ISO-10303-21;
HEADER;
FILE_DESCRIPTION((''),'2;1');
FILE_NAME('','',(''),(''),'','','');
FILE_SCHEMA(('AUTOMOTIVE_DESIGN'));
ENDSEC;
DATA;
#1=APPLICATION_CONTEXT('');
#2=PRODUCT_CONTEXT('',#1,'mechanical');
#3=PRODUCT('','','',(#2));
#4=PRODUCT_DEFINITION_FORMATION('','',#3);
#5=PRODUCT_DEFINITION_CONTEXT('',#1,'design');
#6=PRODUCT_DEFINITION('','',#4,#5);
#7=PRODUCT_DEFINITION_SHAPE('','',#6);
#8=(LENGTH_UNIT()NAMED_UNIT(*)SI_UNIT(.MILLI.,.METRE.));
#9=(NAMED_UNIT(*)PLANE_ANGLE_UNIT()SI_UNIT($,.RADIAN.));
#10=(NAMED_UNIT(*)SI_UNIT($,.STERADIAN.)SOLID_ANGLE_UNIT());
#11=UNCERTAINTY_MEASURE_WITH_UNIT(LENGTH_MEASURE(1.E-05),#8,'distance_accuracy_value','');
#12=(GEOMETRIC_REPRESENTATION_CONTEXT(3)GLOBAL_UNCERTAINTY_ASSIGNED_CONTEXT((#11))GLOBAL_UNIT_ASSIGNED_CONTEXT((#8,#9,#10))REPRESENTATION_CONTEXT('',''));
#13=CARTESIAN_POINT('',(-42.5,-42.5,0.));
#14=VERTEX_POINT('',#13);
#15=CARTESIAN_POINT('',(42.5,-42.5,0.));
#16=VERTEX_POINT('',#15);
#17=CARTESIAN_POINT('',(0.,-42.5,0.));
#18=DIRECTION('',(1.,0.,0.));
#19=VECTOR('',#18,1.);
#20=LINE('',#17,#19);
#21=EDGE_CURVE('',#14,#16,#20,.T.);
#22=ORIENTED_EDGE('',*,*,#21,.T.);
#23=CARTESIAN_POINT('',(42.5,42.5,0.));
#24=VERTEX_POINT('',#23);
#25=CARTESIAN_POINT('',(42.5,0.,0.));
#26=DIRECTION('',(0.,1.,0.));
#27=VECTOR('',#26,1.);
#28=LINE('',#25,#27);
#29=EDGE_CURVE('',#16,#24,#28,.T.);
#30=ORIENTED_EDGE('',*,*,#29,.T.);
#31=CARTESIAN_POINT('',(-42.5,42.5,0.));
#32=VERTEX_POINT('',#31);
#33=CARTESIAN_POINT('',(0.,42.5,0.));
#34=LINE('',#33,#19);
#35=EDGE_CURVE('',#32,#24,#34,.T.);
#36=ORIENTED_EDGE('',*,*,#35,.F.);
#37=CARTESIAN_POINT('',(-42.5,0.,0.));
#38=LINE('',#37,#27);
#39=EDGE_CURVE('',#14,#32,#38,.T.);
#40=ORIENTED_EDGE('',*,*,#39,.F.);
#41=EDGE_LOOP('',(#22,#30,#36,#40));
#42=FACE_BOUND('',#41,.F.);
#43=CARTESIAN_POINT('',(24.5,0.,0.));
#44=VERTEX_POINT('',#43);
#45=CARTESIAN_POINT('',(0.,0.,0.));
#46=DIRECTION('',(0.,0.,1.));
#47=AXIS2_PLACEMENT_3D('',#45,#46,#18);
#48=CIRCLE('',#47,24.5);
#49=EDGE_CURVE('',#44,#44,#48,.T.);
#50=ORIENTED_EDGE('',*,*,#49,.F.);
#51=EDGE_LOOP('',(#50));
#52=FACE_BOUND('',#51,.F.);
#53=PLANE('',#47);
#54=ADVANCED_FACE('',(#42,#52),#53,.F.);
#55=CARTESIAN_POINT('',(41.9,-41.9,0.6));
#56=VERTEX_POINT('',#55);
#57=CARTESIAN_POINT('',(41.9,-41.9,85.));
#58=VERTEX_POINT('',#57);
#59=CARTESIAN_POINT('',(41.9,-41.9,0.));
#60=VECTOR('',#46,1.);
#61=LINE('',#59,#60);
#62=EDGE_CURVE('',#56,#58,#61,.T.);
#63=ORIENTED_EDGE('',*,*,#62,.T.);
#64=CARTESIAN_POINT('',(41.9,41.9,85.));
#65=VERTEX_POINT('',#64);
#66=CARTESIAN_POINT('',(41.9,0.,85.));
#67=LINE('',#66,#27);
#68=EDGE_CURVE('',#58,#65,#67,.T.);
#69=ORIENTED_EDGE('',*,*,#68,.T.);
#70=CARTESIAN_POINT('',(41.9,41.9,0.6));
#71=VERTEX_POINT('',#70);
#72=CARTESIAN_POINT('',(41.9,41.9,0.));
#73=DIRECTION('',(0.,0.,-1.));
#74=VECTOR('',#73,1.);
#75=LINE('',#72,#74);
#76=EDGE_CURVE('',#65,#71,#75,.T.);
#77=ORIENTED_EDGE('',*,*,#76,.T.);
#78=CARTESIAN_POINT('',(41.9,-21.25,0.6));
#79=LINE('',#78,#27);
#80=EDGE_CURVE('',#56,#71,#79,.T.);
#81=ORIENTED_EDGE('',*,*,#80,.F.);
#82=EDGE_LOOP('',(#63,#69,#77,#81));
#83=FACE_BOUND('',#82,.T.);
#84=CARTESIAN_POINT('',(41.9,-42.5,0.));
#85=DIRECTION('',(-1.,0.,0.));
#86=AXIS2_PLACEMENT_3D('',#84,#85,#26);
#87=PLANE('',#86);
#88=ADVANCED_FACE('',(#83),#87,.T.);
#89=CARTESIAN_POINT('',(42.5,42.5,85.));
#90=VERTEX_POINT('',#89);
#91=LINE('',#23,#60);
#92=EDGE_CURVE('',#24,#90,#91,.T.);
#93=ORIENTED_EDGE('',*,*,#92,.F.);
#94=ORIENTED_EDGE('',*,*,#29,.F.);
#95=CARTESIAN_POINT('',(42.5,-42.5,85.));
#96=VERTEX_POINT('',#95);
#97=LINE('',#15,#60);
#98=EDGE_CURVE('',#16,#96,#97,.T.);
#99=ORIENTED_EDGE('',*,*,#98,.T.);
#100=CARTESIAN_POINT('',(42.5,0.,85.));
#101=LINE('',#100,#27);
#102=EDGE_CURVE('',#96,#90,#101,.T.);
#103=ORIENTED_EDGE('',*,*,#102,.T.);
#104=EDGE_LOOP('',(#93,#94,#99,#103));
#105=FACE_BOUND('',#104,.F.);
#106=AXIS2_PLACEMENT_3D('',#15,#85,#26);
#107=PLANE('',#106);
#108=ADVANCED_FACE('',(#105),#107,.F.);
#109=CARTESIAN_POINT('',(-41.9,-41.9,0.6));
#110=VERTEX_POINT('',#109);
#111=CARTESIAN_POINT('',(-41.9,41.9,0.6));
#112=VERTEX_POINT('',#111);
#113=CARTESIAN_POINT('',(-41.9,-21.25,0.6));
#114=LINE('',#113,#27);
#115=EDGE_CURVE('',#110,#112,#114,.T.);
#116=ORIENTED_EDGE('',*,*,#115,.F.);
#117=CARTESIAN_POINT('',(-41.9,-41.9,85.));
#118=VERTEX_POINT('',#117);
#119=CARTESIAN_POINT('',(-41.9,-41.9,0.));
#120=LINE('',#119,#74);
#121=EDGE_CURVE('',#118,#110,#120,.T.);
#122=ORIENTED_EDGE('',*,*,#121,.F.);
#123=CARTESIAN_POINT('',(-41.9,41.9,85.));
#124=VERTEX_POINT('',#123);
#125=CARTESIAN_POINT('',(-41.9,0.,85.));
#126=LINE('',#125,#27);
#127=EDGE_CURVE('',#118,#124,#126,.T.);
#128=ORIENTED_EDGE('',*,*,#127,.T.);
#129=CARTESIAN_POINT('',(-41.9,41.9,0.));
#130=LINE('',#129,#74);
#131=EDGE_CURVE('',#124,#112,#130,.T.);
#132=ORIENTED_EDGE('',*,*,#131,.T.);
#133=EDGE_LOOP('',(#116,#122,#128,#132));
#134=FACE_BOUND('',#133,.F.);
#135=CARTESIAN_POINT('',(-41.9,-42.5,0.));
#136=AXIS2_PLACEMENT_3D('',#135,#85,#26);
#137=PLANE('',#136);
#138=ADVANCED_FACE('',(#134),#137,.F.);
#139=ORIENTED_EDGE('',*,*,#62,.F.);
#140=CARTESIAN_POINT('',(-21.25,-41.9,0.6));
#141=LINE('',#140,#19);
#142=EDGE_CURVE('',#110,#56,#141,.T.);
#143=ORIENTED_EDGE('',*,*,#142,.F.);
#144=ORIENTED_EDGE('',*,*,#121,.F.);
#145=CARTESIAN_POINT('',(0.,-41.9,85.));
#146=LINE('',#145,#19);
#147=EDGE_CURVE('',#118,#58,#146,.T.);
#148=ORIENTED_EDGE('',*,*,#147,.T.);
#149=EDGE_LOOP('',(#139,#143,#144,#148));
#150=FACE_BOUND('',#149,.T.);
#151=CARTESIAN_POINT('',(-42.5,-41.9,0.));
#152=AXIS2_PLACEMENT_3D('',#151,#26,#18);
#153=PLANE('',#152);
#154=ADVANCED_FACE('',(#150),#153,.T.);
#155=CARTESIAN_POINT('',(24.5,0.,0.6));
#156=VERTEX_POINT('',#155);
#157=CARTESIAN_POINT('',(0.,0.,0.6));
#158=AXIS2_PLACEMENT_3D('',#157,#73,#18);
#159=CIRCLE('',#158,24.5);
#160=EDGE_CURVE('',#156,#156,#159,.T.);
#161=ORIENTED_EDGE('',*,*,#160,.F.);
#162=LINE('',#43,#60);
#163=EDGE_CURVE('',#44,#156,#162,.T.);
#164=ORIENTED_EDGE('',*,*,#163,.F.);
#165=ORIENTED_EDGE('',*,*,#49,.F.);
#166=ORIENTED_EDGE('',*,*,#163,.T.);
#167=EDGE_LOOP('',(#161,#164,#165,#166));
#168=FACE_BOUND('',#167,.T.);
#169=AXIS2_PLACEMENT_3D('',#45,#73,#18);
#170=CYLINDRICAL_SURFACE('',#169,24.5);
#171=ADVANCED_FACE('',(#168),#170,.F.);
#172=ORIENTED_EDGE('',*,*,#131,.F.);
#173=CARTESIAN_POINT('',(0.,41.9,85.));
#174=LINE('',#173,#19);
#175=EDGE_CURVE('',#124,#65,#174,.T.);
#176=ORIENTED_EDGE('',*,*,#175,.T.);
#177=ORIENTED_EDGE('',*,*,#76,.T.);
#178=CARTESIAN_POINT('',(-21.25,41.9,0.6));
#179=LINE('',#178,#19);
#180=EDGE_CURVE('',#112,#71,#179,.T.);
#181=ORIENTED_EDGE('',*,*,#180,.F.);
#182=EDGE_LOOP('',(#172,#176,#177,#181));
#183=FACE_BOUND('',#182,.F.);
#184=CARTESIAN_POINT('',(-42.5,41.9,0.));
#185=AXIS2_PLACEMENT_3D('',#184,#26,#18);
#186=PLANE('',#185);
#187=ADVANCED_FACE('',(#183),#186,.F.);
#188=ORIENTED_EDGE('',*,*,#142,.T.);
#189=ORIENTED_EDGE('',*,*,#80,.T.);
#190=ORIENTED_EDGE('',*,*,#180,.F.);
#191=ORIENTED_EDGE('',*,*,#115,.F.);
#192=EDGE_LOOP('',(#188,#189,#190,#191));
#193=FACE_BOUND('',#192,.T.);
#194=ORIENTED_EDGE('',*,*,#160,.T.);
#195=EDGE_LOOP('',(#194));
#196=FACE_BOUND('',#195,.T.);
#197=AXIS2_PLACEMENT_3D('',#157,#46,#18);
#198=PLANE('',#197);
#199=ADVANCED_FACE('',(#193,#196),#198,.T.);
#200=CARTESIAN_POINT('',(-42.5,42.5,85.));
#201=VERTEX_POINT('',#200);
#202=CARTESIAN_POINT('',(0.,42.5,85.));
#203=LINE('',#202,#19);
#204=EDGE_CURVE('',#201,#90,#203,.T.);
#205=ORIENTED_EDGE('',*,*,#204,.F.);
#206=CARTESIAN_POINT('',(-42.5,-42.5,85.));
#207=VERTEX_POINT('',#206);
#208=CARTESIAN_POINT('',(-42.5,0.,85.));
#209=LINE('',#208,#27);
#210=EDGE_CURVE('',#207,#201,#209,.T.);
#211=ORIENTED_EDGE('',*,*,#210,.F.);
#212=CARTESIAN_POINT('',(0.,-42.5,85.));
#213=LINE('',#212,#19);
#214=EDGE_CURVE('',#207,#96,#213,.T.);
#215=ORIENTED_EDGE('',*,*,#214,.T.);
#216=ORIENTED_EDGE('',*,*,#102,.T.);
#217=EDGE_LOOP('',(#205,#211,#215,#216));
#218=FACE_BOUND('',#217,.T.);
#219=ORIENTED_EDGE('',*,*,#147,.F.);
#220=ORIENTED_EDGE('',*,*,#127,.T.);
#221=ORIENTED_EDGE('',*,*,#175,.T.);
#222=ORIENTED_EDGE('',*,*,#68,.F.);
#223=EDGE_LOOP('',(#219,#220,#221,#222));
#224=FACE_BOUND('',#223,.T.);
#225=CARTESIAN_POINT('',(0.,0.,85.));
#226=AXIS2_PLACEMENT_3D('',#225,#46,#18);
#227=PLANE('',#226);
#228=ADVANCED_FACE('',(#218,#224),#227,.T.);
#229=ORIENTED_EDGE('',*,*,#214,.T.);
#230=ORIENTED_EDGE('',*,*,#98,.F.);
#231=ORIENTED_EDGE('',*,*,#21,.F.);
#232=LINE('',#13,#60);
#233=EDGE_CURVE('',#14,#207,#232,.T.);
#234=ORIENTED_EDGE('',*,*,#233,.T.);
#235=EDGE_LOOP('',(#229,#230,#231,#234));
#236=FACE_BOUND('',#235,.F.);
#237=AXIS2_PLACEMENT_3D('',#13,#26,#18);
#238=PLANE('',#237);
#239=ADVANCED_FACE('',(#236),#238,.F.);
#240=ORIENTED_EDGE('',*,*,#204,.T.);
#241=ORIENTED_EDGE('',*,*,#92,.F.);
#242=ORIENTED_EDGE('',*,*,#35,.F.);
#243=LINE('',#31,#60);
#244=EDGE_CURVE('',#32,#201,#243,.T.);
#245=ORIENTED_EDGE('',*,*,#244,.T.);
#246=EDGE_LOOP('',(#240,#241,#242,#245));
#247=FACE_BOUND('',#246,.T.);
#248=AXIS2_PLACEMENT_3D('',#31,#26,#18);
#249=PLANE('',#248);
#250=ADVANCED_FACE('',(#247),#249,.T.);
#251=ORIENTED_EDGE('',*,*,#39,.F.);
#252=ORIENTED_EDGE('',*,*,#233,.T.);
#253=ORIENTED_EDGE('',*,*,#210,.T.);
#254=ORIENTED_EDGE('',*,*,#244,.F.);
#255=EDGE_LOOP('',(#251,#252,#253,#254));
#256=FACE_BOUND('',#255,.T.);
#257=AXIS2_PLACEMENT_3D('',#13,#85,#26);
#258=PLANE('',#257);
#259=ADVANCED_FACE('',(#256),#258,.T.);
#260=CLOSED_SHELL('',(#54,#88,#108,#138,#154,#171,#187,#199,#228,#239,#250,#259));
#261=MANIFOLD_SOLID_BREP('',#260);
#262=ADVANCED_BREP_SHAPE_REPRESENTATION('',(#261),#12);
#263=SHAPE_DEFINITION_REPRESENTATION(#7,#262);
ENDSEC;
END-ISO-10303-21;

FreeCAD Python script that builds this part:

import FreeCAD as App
import Part
import Sketcher
from FreeCAD import Vector
Q = App.Units.Quantity


def faces_at(feature, points):
    """Names of the faces that lie closest to the given points."""
    faces = feature.Shape.Faces
    near = lambda p: min(range(len(faces)), key=lambda i: faces[i].distToShape(Part.Vertex(*p))[0])
    return sorted({f"Face{near(p) + 1}" for p in points})


def add_polygon(sketch, points):
    """Adds a closed chain of lines whose ends are joined by coincident constraints."""
    first, n = sketch.GeometryCount, len(points)
    for a, b in zip(points, points[1:] + points[:1]):
        sketch.addGeometry(Part.LineSegment(App.Vector(*a, 0), App.Vector(*b, 0)), False)
    for i in range(n):
        sketch.addConstraint(Sketcher.Constraint("Coincident", first + i, 2, first + (i + 1) % n, 1))

doc = App.newDocument("Part")
body = doc.addObject("PartDesign::Body", "Body")

# Sketch on XY plane
sketch1 = doc.addObject("Sketcher::SketchObject", "Sketch")
body.addObject(sketch1)
sketch1.AttachmentSupport = (doc.XY_Plane, [""])
sketch1.MapMode = "FlatFace"
add_polygon(sketch1, [(-42, 42), (-42, -42), (42, -42), (42, 42)])  # lines 0-3
sketch1.addConstraint([
    Sketcher.Constraint("Vertical", 0),
    Sketcher.Constraint("Horizontal", 1),
    Sketcher.Constraint("Vertical", 2),
    Sketcher.Constraint("Horizontal", 3),
    Sketcher.Constraint("Symmetric", 0, 2, 2, 2, -1, 1),
    Sketcher.Constraint("Equal", 3, 0),
    Sketcher.Constraint("DistanceX", 1, 1, 1, 2, Q("85 mm")),
])
pad1 = doc.addObject("PartDesign::Pad", "Pad")
body.addObject(pad1)
pad1.Profile = sketch1
pad1.Length = 85
doc.recompute()

thickness = doc.addObject("PartDesign::Thickness", "Thickness")
body.addObject(thickness)
thickness.Base = (pad1, faces_at(pad1, [(0, 0, 85)]))
thickness.Value = 0.6
thickness.Reversed = True
thickness.Join = "Arc"

# Sketch on XY plane
sketch2 = doc.addObject("Sketcher::SketchObject", "Sketch001")
body.addObject(sketch2)
sketch2.AttachmentSupport = (doc.XY_Plane, [""])
sketch2.MapMode = "FlatFace"
sketch2.addGeometry(Part.Circle(Vector(0, 0, 0), Vector(0, 0, 1), 24), False)
sketch2.addConstraint([
    Sketcher.Constraint("Coincident", 0, 3, -1, 1),
    Sketcher.Constraint("Diameter", 0, Q("49 mm")),
])
pocket1 = doc.addObject("PartDesign::Pocket", "Pocket")
body.addObject(pocket1)
pocket1.Profile = sketch2
pocket1.Length = 25
pocket1.Reversed = True

doc.recompute()
